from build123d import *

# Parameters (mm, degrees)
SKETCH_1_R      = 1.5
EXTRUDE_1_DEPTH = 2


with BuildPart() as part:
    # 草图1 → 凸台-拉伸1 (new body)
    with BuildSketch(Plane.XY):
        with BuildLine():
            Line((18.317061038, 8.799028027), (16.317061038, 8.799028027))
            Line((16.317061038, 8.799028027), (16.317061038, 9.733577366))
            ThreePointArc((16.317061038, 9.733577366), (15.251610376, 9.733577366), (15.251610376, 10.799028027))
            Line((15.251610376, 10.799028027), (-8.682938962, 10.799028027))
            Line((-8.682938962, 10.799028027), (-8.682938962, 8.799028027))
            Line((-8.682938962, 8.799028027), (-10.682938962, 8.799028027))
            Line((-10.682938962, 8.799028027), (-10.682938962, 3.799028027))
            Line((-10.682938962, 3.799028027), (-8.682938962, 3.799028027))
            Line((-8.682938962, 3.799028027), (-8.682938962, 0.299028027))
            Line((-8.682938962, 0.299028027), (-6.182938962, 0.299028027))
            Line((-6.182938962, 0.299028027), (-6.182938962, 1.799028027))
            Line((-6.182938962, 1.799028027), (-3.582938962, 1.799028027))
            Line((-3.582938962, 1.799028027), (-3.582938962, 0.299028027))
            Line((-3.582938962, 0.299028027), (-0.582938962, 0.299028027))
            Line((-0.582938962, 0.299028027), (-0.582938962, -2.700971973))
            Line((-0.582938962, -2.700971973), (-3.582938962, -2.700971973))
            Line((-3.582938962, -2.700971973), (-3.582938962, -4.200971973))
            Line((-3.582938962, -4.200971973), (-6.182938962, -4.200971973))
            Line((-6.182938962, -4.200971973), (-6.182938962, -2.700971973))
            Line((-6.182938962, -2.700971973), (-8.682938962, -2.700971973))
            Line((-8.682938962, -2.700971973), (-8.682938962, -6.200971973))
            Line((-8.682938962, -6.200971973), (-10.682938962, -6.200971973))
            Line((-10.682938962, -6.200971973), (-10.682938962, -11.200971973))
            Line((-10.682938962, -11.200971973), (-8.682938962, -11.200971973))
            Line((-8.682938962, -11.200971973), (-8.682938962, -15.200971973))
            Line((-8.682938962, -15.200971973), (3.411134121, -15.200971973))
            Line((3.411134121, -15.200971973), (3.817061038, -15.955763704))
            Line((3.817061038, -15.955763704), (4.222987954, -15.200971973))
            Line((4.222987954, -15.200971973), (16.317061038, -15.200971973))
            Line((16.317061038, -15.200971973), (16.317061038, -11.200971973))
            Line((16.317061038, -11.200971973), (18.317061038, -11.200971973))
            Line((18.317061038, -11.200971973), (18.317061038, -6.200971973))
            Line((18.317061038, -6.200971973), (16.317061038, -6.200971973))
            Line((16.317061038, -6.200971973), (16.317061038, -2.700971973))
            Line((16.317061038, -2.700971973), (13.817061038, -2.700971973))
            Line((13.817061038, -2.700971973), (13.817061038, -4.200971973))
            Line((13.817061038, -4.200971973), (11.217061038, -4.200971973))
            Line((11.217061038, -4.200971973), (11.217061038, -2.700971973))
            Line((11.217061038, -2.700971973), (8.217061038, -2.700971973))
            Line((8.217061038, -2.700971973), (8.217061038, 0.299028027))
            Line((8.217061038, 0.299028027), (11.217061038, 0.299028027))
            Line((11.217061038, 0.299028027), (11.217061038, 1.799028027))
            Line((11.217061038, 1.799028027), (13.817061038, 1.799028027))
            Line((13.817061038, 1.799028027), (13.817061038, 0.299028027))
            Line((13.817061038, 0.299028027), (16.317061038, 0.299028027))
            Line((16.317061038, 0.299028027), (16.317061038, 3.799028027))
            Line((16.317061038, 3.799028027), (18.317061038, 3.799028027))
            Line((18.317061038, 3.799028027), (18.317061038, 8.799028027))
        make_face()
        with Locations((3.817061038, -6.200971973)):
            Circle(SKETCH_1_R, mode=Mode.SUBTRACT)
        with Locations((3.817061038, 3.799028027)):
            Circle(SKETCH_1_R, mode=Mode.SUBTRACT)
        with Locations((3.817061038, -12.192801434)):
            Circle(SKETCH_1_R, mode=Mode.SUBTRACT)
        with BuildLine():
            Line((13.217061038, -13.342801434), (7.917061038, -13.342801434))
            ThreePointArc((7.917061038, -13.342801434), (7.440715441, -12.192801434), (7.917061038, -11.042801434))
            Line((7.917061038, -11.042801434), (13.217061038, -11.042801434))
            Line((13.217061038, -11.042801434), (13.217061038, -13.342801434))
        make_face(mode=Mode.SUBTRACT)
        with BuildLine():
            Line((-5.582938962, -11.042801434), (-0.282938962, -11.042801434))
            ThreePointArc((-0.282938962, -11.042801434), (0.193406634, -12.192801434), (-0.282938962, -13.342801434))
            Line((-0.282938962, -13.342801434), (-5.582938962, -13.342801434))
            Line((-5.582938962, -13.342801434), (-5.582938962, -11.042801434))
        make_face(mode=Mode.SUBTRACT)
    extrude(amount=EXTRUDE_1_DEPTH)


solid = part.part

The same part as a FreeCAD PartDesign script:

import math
import FreeCAD as App
import Part
import Sketcher
Q = App.Units.Quantity

doc = App.newDocument("Part")
body = doc.addObject("PartDesign::Body", "Body")

# Sketch on XY plane
sketch1 = body.newObject("Sketcher::SketchObject", "Sketch")
sketch1.AttachmentSupport = (doc.getObject("XY_Plane"), [""])
sketch1.MapMode = "FlatFace"
sketch1.addGeometry([
    Part.LineSegment(App.Vector(18.317061, 8.799028, 0), App.Vector(16.317061, 8.799028, 0)),  # 0
    Part.LineSegment(App.Vector(16.317061, 8.799028, 0), App.Vector(16.317061, 9.733577, 0)),  # 1
    Part.ArcOfCircle(Part.Circle(App.Vector(15.784336, 10.266303, 0), App.Vector(0, 0, 1), 0.753387), math.radians(135), math.radians(315)),  # 2
    Part.LineSegment(App.Vector(15.25161, 10.799028, 0), App.Vector(-8.682939, 10.799028, 0)),  # 3
    Part.LineSegment(App.Vector(-8.682939, 10.799028, 0), App.Vector(-8.682939, 8.799028, 0)),  # 4
    Part.LineSegment(App.Vector(-8.682939, 8.799028, 0), App.Vector(-10.682939, 8.799028, 0)),  # 5
    Part.LineSegment(App.Vector(-10.682939, 8.799028, 0), App.Vector(-10.682939, 3.799028, 0)),  # 6
    Part.LineSegment(App.Vector(-10.682939, 3.799028, 0), App.Vector(-8.682939, 3.799028, 0)),  # 7
    Part.LineSegment(App.Vector(-8.682939, 3.799028, 0), App.Vector(-8.682939, 0.299028, 0)),  # 8
    Part.LineSegment(App.Vector(-8.682939, 0.299028, 0), App.Vector(-6.182939, 0.299028, 0)),  # 9
    Part.LineSegment(App.Vector(-6.182939, 0.299028, 0), App.Vector(-6.182939, 1.799028, 0)),  # 10
    Part.LineSegment(App.Vector(-6.182939, 1.799028, 0), App.Vector(-3.582939, 1.799028, 0)),  # 11
    Part.LineSegment(App.Vector(-3.582939, 1.799028, 0), App.Vector(-3.582939, 0.299028, 0)),  # 12
    Part.LineSegment(App.Vector(-3.582939, 0.299028, 0), App.Vector(-0.582939, 0.299028, 0)),  # 13
    Part.LineSegment(App.Vector(-0.582939, 0.299028, 0), App.Vector(-0.582939, -2.700972, 0)),  # 14
    Part.LineSegment(App.Vector(-0.582939, -2.700972, 0), App.Vector(-3.582939, -2.700972, 0)),  # 15
    Part.LineSegment(App.Vector(-3.582939, -2.700972, 0), App.Vector(-3.582939, -4.200972, 0)),  # 16
    Part.LineSegment(App.Vector(-3.582939, -4.200972, 0), App.Vector(-6.182939, -4.200972, 0)),  # 17
    Part.LineSegment(App.Vector(-6.182939, -4.200972, 0), App.Vector(-6.182939, -2.700972, 0)),  # 18
    Part.LineSegment(App.Vector(-6.182939, -2.700972, 0), App.Vector(-8.682939, -2.700972, 0)),  # 19
    Part.LineSegment(App.Vector(-8.682939, -2.700972, 0), App.Vector(-8.682939, -6.200972, 0)),  # 20
    Part.LineSegment(App.Vector(-8.682939, -6.200972, 0), App.Vector(-10.682939, -6.200972, 0)),  # 21
    Part.LineSegment(App.Vector(-10.682939, -6.200972, 0), App.Vector(-10.682939, -11.200972, 0)),  # 22
    Part.LineSegment(App.Vector(-10.682939, -11.200972, 0), App.Vector(-8.682939, -11.200972, 0)),  # 23
    Part.LineSegment(App.Vector(-8.682939, -11.200972, 0), App.Vector(-8.682939, -15.200972, 0)),  # 24
    Part.LineSegment(App.Vector(-8.682939, -15.200972, 0), App.Vector(3.411134, -15.200972, 0)),  # 25
    Part.LineSegment(App.Vector(3.411134, -15.200972, 0), App.Vector(3.817061, -15.955764, 0)),  # 26
    Part.LineSegment(App.Vector(3.817061, -15.955764, 0), App.Vector(4.222988, -15.200972, 0)),  # 27
    Part.LineSegment(App.Vector(4.222988, -15.200972, 0), App.Vector(16.317061, -15.200972, 0)),  # 28
    Part.LineSegment(App.Vector(16.317061, -15.200972, 0), App.Vector(16.317061, -11.200972, 0)),  # 29
    Part.LineSegment(App.Vector(16.317061, -11.200972, 0), App.Vector(18.317061, -11.200972, 0)),  # 30
    Part.LineSegment(App.Vector(18.317061, -11.200972, 0), App.Vector(18.317061, -6.200972, 0)),  # 31
    Part.LineSegment(App.Vector(18.317061, -6.200972, 0), App.Vector(16.317061, -6.200972, 0)),  # 32
    Part.LineSegment(App.Vector(16.317061, -6.200972, 0), App.Vector(16.317061, -2.700972, 0)),  # 33
    Part.LineSegment(App.Vector(16.317061, -2.700972, 0), App.Vector(13.817061, -2.700972, 0)),  # 34
    Part.LineSegment(App.Vector(13.817061, -2.700972, 0), App.Vector(13.817061, -4.200972, 0)),  # 35
    Part.LineSegment(App.Vector(13.817061, -4.200972, 0), App.Vector(11.217061, -4.200972, 0)),  # 36
    Part.LineSegment(App.Vector(11.217061, -4.200972, 0), App.Vector(11.217061, -2.700972, 0)),  # 37
    Part.LineSegment(App.Vector(11.217061, -2.700972, 0), App.Vector(8.217061, -2.700972, 0)),  # 38
    Part.LineSegment(App.Vector(8.217061, -2.700972, 0), App.Vector(8.217061, 0.299028, 0)),  # 39
    Part.LineSegment(App.Vector(8.217061, 0.299028, 0), App.Vector(11.217061, 0.299028, 0)),  # 40
    Part.LineSegment(App.Vector(11.217061, 0.299028, 0), App.Vector(11.217061, 1.799028, 0)),  # 41
    Part.LineSegment(App.Vector(11.217061, 1.799028, 0), App.Vector(13.817061, 1.799028, 0)),  # 42
    Part.LineSegment(App.Vector(13.817061, 1.799028, 0), App.Vector(13.817061, 0.299028, 0)),  # 43
    Part.LineSegment(App.Vector(13.817061, 0.299028, 0), App.Vector(16.317061, 0.299028, 0)),  # 44
    Part.LineSegment(App.Vector(16.317061, 0.299028, 0), App.Vector(16.317061, 3.799028, 0)),  # 45
    Part.LineSegment(App.Vector(16.317061, 3.799028, 0), App.Vector(18.317061, 3.799028, 0)),  # 46
    Part.LineSegment(App.Vector(18.317061, 3.799028, 0), App.Vector(18.317061, 8.799028, 0)),  # 47
    Part.LineSegment(App.Vector(-5.582939, -13.342801, 0), App.Vector(-5.582939, -11.042801, 0)),  # 48
    Part.LineSegment(App.Vector(-5.582939, -11.042801, 0), App.Vector(-0.282939, -11.042801, 0)),  # 49
    Part.ArcOfCircle(Part.Circle(App.Vector(-1.432939, -12.192801, 0), App.Vector(0, 0, 1), 1.626346), math.radians(-45), math.radians(45)),  # 50
    Part.LineSegment(App.Vector(-0.282939, -13.342801, 0), App.Vector(-5.582939, -13.342801, 0)),  # 51
    Part.Circle(App.Vector(3.817061, -12.192801, 0), App.Vector(0, 0, 1), 1.5),  # 52
    Part.LineSegment(App.Vector(13.217061, -11.042801, 0), App.Vector(13.217061, -13.342801, 0)),  # 53
    Part.LineSegment(App.Vector(13.217061, -13.342801, 0), App.Vector(7.917061, -13.342801, 0)),  # 54
    Part.ArcOfCircle(Part.Circle(App.Vector(9.067061, -12.192801, 0), App.Vector(0, 0, 1), 1.626346), math.radians(135), math.radians(225)),  # 55
    Part.LineSegment(App.Vector(7.917061, -11.042801, 0), App.Vector(13.217061, -11.042801, 0)),  # 56
    Part.Circle(App.Vector(3.817061, -6.200972, 0), App.Vector(0, 0, 1), 1.5),  # 57
    Part.Circle(App.Vector(3.817061, 3.799028, 0), App.Vector(0, 0, 1), 1.5),  # 58
], False)
sketch1.addConstraint([
    Sketcher.Constraint("Coincident", 0, 2, 1, 1),
    Sketcher.Constraint("Coincident", 1, 2, 2, 2),
    Sketcher.Constraint("Coincident", 2, 1, 3, 1),
    Sketcher.Constraint("Coincident", 3, 2, 4, 1),
    Sketcher.Constraint("Coincident", 4, 2, 5, 1),
    Sketcher.Constraint("Coincident", 5, 2, 6, 1),
    Sketcher.Constraint("Coincident", 6, 2, 7, 1),
    Sketcher.Constraint("Coincident", 7, 2, 8, 1),
    Sketcher.Constraint("Coincident", 8, 2, 9, 1),
    Sketcher.Constraint("Coincident", 9, 2, 10, 1),
    Sketcher.Constraint("Coincident", 10, 2, 11, 1),
    Sketcher.Constraint("Coincident", 11, 2, 12, 1),
    Sketcher.Constraint("Coincident", 12, 2, 13, 1),
    Sketcher.Constraint("Coincident", 13, 2, 14, 1),
    Sketcher.Constraint("Coincident", 14, 2, 15, 1),
    Sketcher.Constraint("Coincident", 15, 2, 16, 1),
    Sketcher.Constraint("Coincident", 16, 2, 17, 1),
    Sketcher.Constraint("Coincident", 17, 2, 18, 1),
    Sketcher.Constraint("Coincident", 18, 2, 19, 1),
    Sketcher.Constraint("Coincident", 19, 2, 20, 1),
    Sketcher.Constraint("Coincident", 20, 2, 21, 1),
    Sketcher.Constraint("Coincident", 21, 2, 22, 1),
    Sketcher.Constraint("Coincident", 22, 2, 23, 1),
    Sketcher.Constraint("Coincident", 23, 2, 24, 1),
    Sketcher.Constraint("Coincident", 24, 2, 25, 1),
    Sketcher.Constraint("Coincident", 25, 2, 26, 1),
    Sketcher.Constraint("Coincident", 26, 2, 27, 1),
    Sketcher.Constraint("Coincident", 27, 2, 28, 1),
    Sketcher.Constraint("Coincident", 28, 2, 29, 1),
    Sketcher.Constraint("Coincident", 29, 2, 30, 1),
    Sketcher.Constraint("Coincident", 30, 2, 31, 1),
    Sketcher.Constraint("Coincident", 31, 2, 32, 1),
    Sketcher.Constraint("Coincident", 32, 2, 33, 1),
    Sketcher.Constraint("Coincident", 33, 2, 34, 1),
    Sketcher.Constraint("Coincident", 34, 2, 35, 1),
    Sketcher.Constraint("Coincident", 35, 2, 36, 1),
    Sketcher.Constraint("Coincident", 36, 2, 37, 1),
    Sketcher.Constraint("Coincident", 37, 2, 38, 1),
    Sketcher.Constraint("Coincident", 38, 2, 39, 1),
    Sketcher.Constraint("Coincident", 39, 2, 40, 1),
    Sketcher.Constraint("Coincident", 40, 2, 41, 1),
    Sketcher.Constraint("Coincident", 41, 2, 42, 1),
    Sketcher.Constraint("Coincident", 42, 2, 43, 1),
    Sketcher.Constraint("Coincident", 43, 2, 44, 1),
    Sketcher.Constraint("Coincident", 44, 2, 45, 1),
    Sketcher.Constraint("Coincident", 45, 2, 46, 1),
    Sketcher.Constraint("Coincident", 46, 2, 47, 1),
    Sketcher.Constraint("Coincident", 47, 2, 0, 1),
    Sketcher.Constraint("Coincident", 48, 2, 49, 1),
    Sketcher.Constraint("Coincident", 49, 2, 50, 2),
    Sketcher.Constraint("Coincident", 50, 1, 51, 1),
    Sketcher.Constraint("Coincident", 51, 2, 48, 1),
    Sketcher.Constraint("Coincident", 53, 2, 54, 1),
    Sketcher.Constraint("Coincident", 54, 2, 55, 2),
    Sketcher.Constraint("Coincident", 55, 1, 56, 1),
    Sketcher.Constraint("Coincident", 56, 2, 53, 1),
    Sketcher.Constraint("Horizontal", 0),
    Sketcher.Constraint("Vertical", 1),
    Sketcher.Constraint("Horizontal", 3),
    Sketcher.Constraint("Vertical", 4),
    Sketcher.Constraint("Horizontal", 5),
    Sketcher.Constraint("Vertical", 6),
    Sketcher.Constraint("Horizontal", 7),
    Sketcher.Constraint("Vertical", 8),
    Sketcher.Constraint("Horizontal", 9),
    Sketcher.Constraint("Vertical", 10),
    Sketcher.Constraint("Horizontal", 11),
    Sketcher.Constraint("Vertical", 12),
    Sketcher.Constraint("Horizontal", 13),
    Sketcher.Constraint("Vertical", 14),
    Sketcher.Constraint("Horizontal", 15),
    Sketcher.Constraint("Vertical", 16),
    Sketcher.Constraint("Horizontal", 17),
    Sketcher.Constraint("Vertical", 18),
    Sketcher.Constraint("Horizontal", 19),
    Sketcher.Constraint("Vertical", 20),
    Sketcher.Constraint("Horizontal", 21),
    Sketcher.Constraint("Vertical", 22),
    Sketcher.Constraint("Horizontal", 23),
    Sketcher.Constraint("Vertical", 24),
    Sketcher.Constraint("Horizontal", 25),
    Sketcher.Constraint("Horizontal", 28),
    Sketcher.Constraint("Vertical", 29),
    Sketcher.Constraint("Horizontal", 30),
    Sketcher.Constraint("Vertical", 31),
    Sketcher.Constraint("Horizontal", 32),
    Sketcher.Constraint("Vertical", 33),
    Sketcher.Constraint("Horizontal", 34),
    Sketcher.Constraint("Vertical", 35),
    Sketcher.Constraint("Horizontal", 36),
    Sketcher.Constraint("Vertical", 37),
    Sketcher.Constraint("Horizontal", 38),
    Sketcher.Constraint("Vertical", 39),
    Sketcher.Constraint("Horizontal", 40),
    Sketcher.Constraint("Vertical", 41),
    Sketcher.Constraint("Horizontal", 42),
    Sketcher.Constraint("Vertical", 43),
    Sketcher.Constraint("Horizontal", 44),
    Sketcher.Constraint("Vertical", 45),
    Sketcher.Constraint("Horizontal", 46),
    Sketcher.Constraint("Vertical", 47),
    Sketcher.Constraint("Vertical", 48),
    Sketcher.Constraint("Horizontal", 49),
    Sketcher.Constraint("Horizontal", 51),
    Sketcher.Constraint("Vertical", 53),
    Sketcher.Constraint("Horizontal", 54),
    Sketcher.Constraint("Horizontal", 56),
    Sketcher.Constraint("Equal", 50, 55),
    Sketcher.Constraint("Equal", 52, 57),
    Sketcher.Constraint("Equal", 57, 58),
    Sketcher.Constraint("Horizontal", 50, 3, 52, 3),
    Sketcher.Constraint("Horizontal", 52, 3, 55, 3),
    Sketcher.Constraint("Horizontal", 0, 2, 4, 2),
    Sketcher.Constraint("Horizontal", 58, 3, 6, 2),
    Sketcher.Constraint("Horizontal", 9, 2, 12, 2),
    Sketcher.Constraint("Horizontal", 15, 2, 18, 2),
    Sketcher.Constraint("Horizontal", 57, 3, 20, 2),
    Sketcher.Constraint("Horizontal", 25, 2, 27, 2),
    Sketcher.Constraint("Horizontal", 23, 2, 29, 2),
    Sketcher.Constraint("Horizontal", 21, 2, 31, 2),
    Sketcher.Constraint("Horizontal", 19, 2, 33, 2),
    Sketcher.Constraint("Horizontal", 17, 2, 35, 2),
    Sketcher.Constraint("Horizontal", 34, 2, 37, 2),
    Sketcher.Constraint("Horizontal", 13, 2, 39, 2),
    Sketcher.Constraint("Horizontal", 11, 2, 41, 2),
    Sketcher.Constraint("Horizontal", 40, 2, 43, 2),
    Sketcher.Constraint("Horizontal", 7, 2, 45, 2),
    Sketcher.Constraint("Horizontal", 51, 2, 53, 2),
    Sketcher.Constraint("Horizontal", 49, 2, 55, 1),
    Sketcher.Constraint("Vertical", 52, 3, 57, 3),
    Sketcher.Constraint("Vertical", 57, 3, 58, 3),
    Sketcher.Constraint("Vertical", 4, 2, 7, 2),
    Sketcher.Constraint("Vertical", 12, 2, 15, 2),
    Sketcher.Constraint("Vertical", 10, 2, 17, 2),
    Sketcher.Constraint("Vertical", 8, 2, 19, 2),
    Sketcher.Constraint("Vertical", 6, 2, 21, 2),
    Sketcher.Constraint("Vertical", 20, 2, 23, 2),
    Sketcher.Constraint("Vertical", 58, 3, 26, 2),
    Sketcher.Constraint("Vertical", 1, 2, 28, 2),
    Sketcher.Constraint("Vertical", 29, 2, 32, 2),
    Sketcher.Constraint("Vertical", 37, 2, 40, 2),
    Sketcher.Constraint("Vertical", 35, 2, 42, 2),
    Sketcher.Constraint("Vertical", 33, 2, 44, 2),
    Sketcher.Constraint("Vertical", 31, 2, 46, 2),
    Sketcher.Constraint("Vertical", 49, 2, 50, 1),
    Sketcher.Constraint("Equal", 0, 5),
    Sketcher.Constraint("Equal", 25, 28),
    Sketcher.Constraint("Equal", 19, 34),
    Sketcher.Constraint("Equal", 17, 36),
    Sketcher.Constraint("Equal", 15, 38),
    Sketcher.Constraint("Equal", 51, 54),
    Sketcher.Constraint("Equal", 46, 4),
    Sketcher.Constraint("Equal", 40, 14),
    Sketcher.Constraint("Equal", 12, 16),
    Sketcher.Constraint("Equal", 8, 20),
    Sketcher.Constraint("Equal", 6, 22),
    Sketcher.Constraint("Equal", 26, 27),
    Sketcher.Constraint("Diameter", 52, Q("3 mm")),
    Sketcher.Constraint("DistanceX", 0, 2, 0, 1, Q("2 mm")),
    Sketcher.Constraint("DistanceX", 13, 1, 13, 2, Q("3 mm")),
    Sketcher.Constraint("DistanceY", 6, 2, 6, 1, Q("5 mm")),
    Sketcher.Constraint("DistanceY", 24, 2, 24, 1, Q("4 mm")),
    Sketcher.Constraint("DistanceX", 9, 1, 9, 2, Q("2.5 mm")),
    Sketcher.Constraint("DistanceX", 11, 1, 11, 2, Q("2.6 mm")),
    Sketcher.Constraint("DistanceX", 49, 1, 49, 2, Q("5.3 mm")),
    Sketcher.Constraint("DistanceY", 8, 2, 8, 1, Q("3.5 mm")),
    Sketcher.Constraint("DistanceY", 10, 1, 10, 2, Q("1.5 mm")),
    Sketcher.Constraint("DistanceY", 48, 1, 48, 2, Q("2.3 mm")),
    Sketcher.Constraint("Radius", 2, Q("0.753387 mm")),
    Sketcher.Constraint("Radius", 50, Q("1.626346 mm")),
    Sketcher.Constraint("DistanceX", 3, 2, 3, 1, Q("23.934549 mm")),
    Sketcher.Constraint("DistanceY", 1, 1, 1, 2, Q("0.934549 mm")),
    Sketcher.Constraint("DistanceY", 50, 3, -1, 1, Q("12.192801 mm")),
    Sketcher.Constraint("DistanceX", 25, 1, 25, 2, Q("12.094073 mm")),
    Sketcher.Constraint("DistanceX", 50, 3, -1, 1, Q("1.432939 mm")),
    Sketcher.Constraint("DistanceX", -1, 1, 52, 3, Q("3.817061 mm")),
    Sketcher.Constraint("DistanceX", -1, 1, 55, 3, Q("9.067061 mm")),
    Sketcher.Constraint("DistanceY", 57, 3, -1, 1, Q("6.200972 mm")),
    Sketcher.Constraint("Distance", 26, Q("0.857022 mm")),
    Sketcher.Constraint("DistanceX", -1, 1, 2, 3, Q("15.784336 mm")),
])
pad1 = body.newObject("PartDesign::Pad", "Pad")
pad1.Profile = sketch1
pad1.Length = 2

doc.recompute()
